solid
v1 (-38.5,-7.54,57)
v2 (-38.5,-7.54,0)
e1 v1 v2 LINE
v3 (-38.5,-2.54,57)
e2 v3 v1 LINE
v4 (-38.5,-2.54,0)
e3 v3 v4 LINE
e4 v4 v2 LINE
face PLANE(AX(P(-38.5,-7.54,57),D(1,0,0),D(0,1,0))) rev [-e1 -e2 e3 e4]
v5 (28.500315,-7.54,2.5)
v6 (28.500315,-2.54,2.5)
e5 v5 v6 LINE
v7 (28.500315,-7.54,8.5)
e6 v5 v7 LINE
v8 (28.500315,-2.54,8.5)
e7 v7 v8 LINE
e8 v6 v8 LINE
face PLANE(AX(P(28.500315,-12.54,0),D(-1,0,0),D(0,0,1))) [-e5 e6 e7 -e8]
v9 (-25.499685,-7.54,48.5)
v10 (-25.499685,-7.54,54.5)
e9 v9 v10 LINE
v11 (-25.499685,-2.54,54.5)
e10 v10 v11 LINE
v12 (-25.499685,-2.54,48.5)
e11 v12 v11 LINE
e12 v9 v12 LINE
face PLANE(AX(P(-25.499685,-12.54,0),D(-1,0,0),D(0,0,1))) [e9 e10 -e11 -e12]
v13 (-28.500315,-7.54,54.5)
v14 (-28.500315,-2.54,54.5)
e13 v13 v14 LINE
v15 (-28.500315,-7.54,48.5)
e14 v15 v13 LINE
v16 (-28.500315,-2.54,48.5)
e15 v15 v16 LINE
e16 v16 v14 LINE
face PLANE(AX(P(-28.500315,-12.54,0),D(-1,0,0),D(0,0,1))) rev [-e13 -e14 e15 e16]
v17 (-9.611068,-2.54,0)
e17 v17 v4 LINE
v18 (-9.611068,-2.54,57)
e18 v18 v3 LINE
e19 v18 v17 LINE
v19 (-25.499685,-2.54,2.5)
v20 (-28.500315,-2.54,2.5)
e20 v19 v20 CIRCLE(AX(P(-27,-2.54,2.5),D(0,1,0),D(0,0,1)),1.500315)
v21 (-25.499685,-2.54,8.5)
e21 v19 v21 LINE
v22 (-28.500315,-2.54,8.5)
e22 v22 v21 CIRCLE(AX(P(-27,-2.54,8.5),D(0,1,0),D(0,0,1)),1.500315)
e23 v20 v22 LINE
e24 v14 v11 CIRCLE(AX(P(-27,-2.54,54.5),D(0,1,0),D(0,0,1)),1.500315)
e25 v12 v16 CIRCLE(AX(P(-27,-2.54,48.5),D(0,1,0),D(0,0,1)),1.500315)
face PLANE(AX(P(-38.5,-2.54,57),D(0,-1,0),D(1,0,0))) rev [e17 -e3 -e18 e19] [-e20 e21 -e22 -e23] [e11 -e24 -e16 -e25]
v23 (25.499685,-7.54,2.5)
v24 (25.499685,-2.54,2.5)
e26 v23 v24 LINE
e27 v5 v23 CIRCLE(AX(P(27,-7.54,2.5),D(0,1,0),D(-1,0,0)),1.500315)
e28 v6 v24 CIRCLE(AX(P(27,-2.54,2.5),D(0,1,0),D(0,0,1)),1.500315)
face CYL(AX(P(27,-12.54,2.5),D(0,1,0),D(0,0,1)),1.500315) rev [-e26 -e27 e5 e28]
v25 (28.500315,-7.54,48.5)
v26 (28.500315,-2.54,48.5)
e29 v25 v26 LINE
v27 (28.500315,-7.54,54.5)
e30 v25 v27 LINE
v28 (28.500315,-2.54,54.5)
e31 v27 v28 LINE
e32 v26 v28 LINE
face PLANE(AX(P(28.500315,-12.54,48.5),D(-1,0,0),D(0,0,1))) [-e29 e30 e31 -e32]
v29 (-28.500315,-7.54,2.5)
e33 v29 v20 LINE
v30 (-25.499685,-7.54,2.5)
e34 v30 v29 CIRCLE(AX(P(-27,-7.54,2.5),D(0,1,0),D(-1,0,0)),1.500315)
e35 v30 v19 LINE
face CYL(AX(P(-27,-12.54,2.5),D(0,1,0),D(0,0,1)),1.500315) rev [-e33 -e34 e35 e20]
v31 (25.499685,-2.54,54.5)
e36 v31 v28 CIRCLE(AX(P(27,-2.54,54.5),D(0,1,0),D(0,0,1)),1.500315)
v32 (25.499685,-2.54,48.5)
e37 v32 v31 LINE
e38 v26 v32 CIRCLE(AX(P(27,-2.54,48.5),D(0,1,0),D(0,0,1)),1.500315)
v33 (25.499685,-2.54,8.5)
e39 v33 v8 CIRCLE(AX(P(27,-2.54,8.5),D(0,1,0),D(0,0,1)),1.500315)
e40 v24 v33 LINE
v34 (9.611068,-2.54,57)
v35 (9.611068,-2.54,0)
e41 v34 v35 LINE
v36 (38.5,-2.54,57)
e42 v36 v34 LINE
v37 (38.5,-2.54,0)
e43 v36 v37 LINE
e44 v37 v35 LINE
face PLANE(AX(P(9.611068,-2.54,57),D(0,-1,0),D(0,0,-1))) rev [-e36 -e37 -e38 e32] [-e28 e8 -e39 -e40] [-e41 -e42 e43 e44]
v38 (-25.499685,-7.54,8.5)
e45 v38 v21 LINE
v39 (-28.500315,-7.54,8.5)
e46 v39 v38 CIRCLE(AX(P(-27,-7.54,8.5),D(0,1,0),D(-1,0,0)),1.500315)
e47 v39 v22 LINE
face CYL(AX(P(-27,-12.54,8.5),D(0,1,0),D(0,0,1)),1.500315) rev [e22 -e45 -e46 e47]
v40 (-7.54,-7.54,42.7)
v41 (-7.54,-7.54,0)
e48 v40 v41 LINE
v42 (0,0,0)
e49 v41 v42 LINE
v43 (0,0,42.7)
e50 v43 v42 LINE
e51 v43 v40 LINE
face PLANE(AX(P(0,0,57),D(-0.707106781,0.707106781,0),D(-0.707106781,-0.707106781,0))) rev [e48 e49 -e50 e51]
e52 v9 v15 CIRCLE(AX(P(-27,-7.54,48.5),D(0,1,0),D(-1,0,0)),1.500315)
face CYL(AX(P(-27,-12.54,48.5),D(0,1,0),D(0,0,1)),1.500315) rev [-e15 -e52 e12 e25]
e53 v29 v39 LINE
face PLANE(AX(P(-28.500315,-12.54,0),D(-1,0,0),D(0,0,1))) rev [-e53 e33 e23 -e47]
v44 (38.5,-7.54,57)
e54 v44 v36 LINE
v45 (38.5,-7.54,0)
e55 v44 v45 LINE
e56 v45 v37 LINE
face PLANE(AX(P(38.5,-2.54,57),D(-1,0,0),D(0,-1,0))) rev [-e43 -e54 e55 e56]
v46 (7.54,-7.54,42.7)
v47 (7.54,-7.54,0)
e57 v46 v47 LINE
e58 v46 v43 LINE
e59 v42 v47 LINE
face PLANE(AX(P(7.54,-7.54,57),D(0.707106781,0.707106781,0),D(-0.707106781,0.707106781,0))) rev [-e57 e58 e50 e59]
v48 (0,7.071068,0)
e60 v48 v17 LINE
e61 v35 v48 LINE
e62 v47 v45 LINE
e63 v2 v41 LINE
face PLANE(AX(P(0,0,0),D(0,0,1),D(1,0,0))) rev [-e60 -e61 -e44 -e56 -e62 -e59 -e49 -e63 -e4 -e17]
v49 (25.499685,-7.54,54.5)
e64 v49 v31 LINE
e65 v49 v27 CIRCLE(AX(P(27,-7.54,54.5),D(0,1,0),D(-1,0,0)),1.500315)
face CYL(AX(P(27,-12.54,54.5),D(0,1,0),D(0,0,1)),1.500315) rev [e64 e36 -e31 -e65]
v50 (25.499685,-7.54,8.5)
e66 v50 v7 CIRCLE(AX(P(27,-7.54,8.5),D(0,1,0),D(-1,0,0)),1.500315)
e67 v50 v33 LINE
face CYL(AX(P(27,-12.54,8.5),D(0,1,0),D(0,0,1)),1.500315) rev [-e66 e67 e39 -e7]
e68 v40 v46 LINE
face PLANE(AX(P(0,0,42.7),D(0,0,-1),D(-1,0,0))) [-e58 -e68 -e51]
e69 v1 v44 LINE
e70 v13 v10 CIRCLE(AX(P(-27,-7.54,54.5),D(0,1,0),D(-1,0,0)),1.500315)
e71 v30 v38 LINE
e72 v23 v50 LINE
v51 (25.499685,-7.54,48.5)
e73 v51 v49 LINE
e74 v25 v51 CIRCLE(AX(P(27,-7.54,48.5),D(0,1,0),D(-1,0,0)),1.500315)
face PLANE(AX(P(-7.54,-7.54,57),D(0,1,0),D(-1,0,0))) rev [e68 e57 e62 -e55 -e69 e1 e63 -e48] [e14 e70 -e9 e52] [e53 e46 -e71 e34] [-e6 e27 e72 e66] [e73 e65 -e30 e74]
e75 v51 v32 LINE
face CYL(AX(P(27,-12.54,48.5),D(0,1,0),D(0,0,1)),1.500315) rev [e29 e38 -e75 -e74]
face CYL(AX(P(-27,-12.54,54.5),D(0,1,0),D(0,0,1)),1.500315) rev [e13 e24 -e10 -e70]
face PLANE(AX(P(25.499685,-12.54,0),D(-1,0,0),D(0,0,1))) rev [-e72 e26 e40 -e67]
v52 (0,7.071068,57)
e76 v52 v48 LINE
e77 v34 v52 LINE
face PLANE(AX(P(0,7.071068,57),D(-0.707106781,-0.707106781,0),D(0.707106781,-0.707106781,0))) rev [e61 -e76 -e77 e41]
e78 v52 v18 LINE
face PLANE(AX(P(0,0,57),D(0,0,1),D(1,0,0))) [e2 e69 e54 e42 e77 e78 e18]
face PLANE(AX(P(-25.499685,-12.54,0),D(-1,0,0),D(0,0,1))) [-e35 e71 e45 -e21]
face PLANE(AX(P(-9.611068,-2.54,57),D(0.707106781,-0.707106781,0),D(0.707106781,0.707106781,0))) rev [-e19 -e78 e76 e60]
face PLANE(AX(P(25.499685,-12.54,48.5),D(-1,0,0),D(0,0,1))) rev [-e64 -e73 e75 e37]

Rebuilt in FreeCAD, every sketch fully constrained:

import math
import FreeCAD as App
import Part
import Sketcher

V = App.Vector

doc = App.newDocument("Part")
params = doc.addObject("Spreadsheet::Sheet", "Params")
for row, (alias, value) in enumerate([
    ("sketch1_height", "5 mm"),
    ("sketch1_width", "30.96 mm"),
    ("pad1_length", "57 mm"),
    ("sketch2_width", "15.08 mm"),
    ("pad2_length", "14.3 mm"),
    ("sketch3_height", "6 mm"),
    ("pocket1_length", "10 mm"),
], start=1):
    params.set(f"A{row}", alias)
    params.set(f"B{row}", "=" + value)
    params.setAlias(f"B{row}", alias)

body = doc.addObject("PartDesign::Body", "Body")

sketch1 = doc.addObject("Sketcher::SketchObject", "Sketch")
body.addObject(sketch1)
sketch1.AttachmentSupport = (doc.XY_Plane, [""])
sketch1.MapMode = "FlatFace"
sketch1.addGeometry([
    Part.LineSegment(V(-7.54, -7.54, 0), V(0, 0, 0)),
    Part.LineSegment(V(0, 0, 0), V(7.54, -7.54, 0)),
    Part.LineSegment(V(7.54, -7.54, 0), V(38.5, -7.54, 0)),
    Part.LineSegment(V(38.5, -7.54, 0), V(38.5, -2.54, 0)),
    Part.LineSegment(V(38.5, -2.54, 0), V(9.611068, -2.54, 0)),
    Part.LineSegment(V(9.611068, -2.54, 0), V(0, 7.071068, 0)),
    Part.LineSegment(V(0, 7.071068, 0), V(-9.611068, -2.54, 0)),
    Part.LineSegment(V(-9.611068, -2.54, 0), V(-38.5, -2.54, 0)),
    Part.LineSegment(V(-38.5, -2.54, 0), V(-38.5, -7.54, 0)),
    Part.LineSegment(V(-38.5, -7.54, 0), V(-7.54, -7.54, 0)),
], False)
sketch1.addConstraint([
    Sketcher.Constraint("Coincident", 0, 2, 1, 1),
    Sketcher.Constraint("Coincident", 1, 2, 2, 1),
    Sketcher.Constraint("Coincident", 2, 2, 3, 1),
    Sketcher.Constraint("Coincident", 3, 2, 4, 1),
    Sketcher.Constraint("Coincident", 4, 2, 5, 1),
    Sketcher.Constraint("Coincident", 5, 2, 6, 1),
    Sketcher.Constraint("Coincident", 6, 2, 7, 1),
    Sketcher.Constraint("Coincident", 7, 2, 8, 1),
    Sketcher.Constraint("Coincident", 8, 2, 9, 1),
    Sketcher.Constraint("Coincident", 9, 2, 0, 1),
    Sketcher.Constraint("Horizontal", 2),
    Sketcher.Constraint("Vertical", 3),
    Sketcher.Constraint("Horizontal", 4),
    Sketcher.Constraint("Horizontal", 7),
    Sketcher.Constraint("Vertical", 8),
    Sketcher.Constraint("Horizontal", 9),
    Sketcher.Constraint("Coincident", 0, 2, -1, 1),
    Sketcher.Constraint("Symmetric", 4, 2, 6, 2, -2),
    Sketcher.Constraint("Symmetric", 2, 2, 8, 2, -2),
    Sketcher.Constraint("PointOnObject", 5, 2, -2),
    Sketcher.Constraint("Perpendicular", 0, 1),
    Sketcher.Constraint("Parallel", 1, 5),
    Sketcher.Constraint("Perpendicular", 5, 6),
    Sketcher.Constraint("DistanceY", 3, 1, 3, 2, 5.0),
    Sketcher.Constraint("DistanceX", 2, 1, 2, 2, 30.96),
    Sketcher.Constraint("DistanceX", -1, 1, 2, 2, 38.5),
    Sketcher.Constraint("DistanceX", 4, 2, 4, 1, 28.888932),
])
sketch1.setExpression("Constraints[23]", "Params.sketch1_height")
sketch1.setExpression("Constraints[24]", "Params.sketch1_width")
pad1 = doc.addObject("PartDesign::Pad", "Pad")
body.addObject(pad1)
pad1.Profile = sketch1
pad1.setExpression("Length", "Params.pad1_length")

sketch2 = doc.addObject("Sketcher::SketchObject", "Sketch001")
body.addObject(sketch2)
sketch2.AttachmentSupport = (doc.XY_Plane, [""])
sketch2.MapMode = "FlatFace"
sketch2.AttachmentOffset = App.Placement(V(0, 0, 57), App.Rotation())
sketch2.addGeometry([
    Part.LineSegment(V(0, 0, 0), V(-7.54, -7.54, 0)),
    Part.LineSegment(V(-7.54, -7.54, 0), V(7.54, -7.54, 0)),
    Part.LineSegment(V(7.54, -7.54, 0), V(0, 0, 0)),
], False)
sketch2.addConstraint([
    Sketcher.Constraint("Coincident", 0, 2, 1, 1),
    Sketcher.Constraint("Coincident", 1, 2, 2, 1),
    Sketcher.Constraint("Coincident", 2, 2, 0, 1),
    Sketcher.Constraint("Horizontal", 1),
    Sketcher.Constraint("Coincident", 2, 2, -1, 1),
    Sketcher.Constraint("Perpendicular", 0, 2),
    Sketcher.Constraint("Equal", 0, 2),
    Sketcher.Constraint("DistanceX", 1, 1, 1, 2, 15.08),
])
sketch2.setExpression("Constraints[7]", "Params.sketch2_width")
pad2 = doc.addObject("PartDesign::Pad", "Pad001")
body.addObject(pad2)
pad2.Profile = sketch2
pad2.setExpression("Length", "Params.pad2_length")
pad2.Reversed = True

sketch3 = doc.addObject("Sketcher::SketchObject", "Sketch002")
body.addObject(sketch3)
sketch3.AttachmentSupport = (doc.XZ_Plane, [""])
sketch3.MapMode = "FlatFace"
sketch3.AttachmentOffset = App.Placement(V(0, 0, 2.54), App.Rotation())
sketch3.addGeometry([
    Part.LineSegment(V(-28.500315, 48.5, 0), V(-28.500315, 54.5, 0)),
    Part.ArcOfCircle(Part.Circle(V(-27, 54.5, 0), V(0, 0, 1), 1.500315), math.radians(0), math.radians(180)),
    Part.LineSegment(V(-25.499685, 54.5, 0), V(-25.499685, 48.5, 0)),
    Part.ArcOfCircle(Part.Circle(V(-27, 48.5, 0), V(0, 0, 1), 1.500315), math.radians(180), math.radians(360)),
    Part.LineSegment(V(25.499685, 2.5, 0), V(25.499685, 8.5, 0)),
    Part.ArcOfCircle(Part.Circle(V(27, 8.5, 0), V(0, 0, 1), 1.500315), math.radians(0), math.radians(180)),
    Part.LineSegment(V(28.500315, 8.5, 0), V(28.500315, 2.5, 0)),
    Part.ArcOfCircle(Part.Circle(V(27, 2.5, 0), V(0, 0, 1), 1.500315), math.radians(180), math.radians(360)),
    Part.LineSegment(V(-28.500315, 2.5, 0), V(-28.500315, 8.5, 0)),
    Part.ArcOfCircle(Part.Circle(V(-27, 8.5, 0), V(0, 0, 1), 1.500315), math.radians(0), math.radians(180)),
    Part.LineSegment(V(-25.499685, 8.5, 0), V(-25.499685, 2.5, 0)),
    Part.ArcOfCircle(Part.Circle(V(-27, 2.5, 0), V(0, 0, 1), 1.500315), math.radians(180), math.radians(360)),
    Part.LineSegment(V(25.499685, 48.5, 0), V(25.499685, 54.5, 0)),
    Part.ArcOfCircle(Part.Circle(V(27, 54.5, 0), V(0, 0, 1), 1.500315), math.radians(0), math.radians(180)),
    Part.LineSegment(V(28.500315, 54.5, 0), V(28.500315, 48.5, 0)),
    Part.ArcOfCircle(Part.Circle(V(27, 48.5, 0), V(0, 0, 1), 1.500315), math.radians(180), math.radians(360)),
], False)
sketch3.addConstraint([
    Sketcher.Constraint("Tangent", 0, 2, 1, 2),
    Sketcher.Constraint("Tangent", 1, 1, 2, 1),
    Sketcher.Constraint("Tangent", 2, 2, 3, 2),
    Sketcher.Constraint("Tangent", 3, 1, 0, 1),
    Sketcher.Constraint("Tangent", 4, 2, 5, 2),
    Sketcher.Constraint("Tangent", 5, 1, 6, 1),
    Sketcher.Constraint("Tangent", 6, 2, 7, 2),
    Sketcher.Constraint("Tangent", 7, 1, 4, 1),
    Sketcher.Constraint("Tangent", 8, 2, 9, 2),
    Sketcher.Constraint("Tangent", 9, 1, 10, 1),
    Sketcher.Constraint("Tangent", 10, 2, 11, 2),
    Sketcher.Constraint("Tangent", 11, 1, 8, 1),
    Sketcher.Constraint("Tangent", 12, 2, 13, 2),
    Sketcher.Constraint("Tangent", 13, 1, 14, 1),
    Sketcher.Constraint("Tangent", 14, 2, 15, 2),
    Sketcher.Constraint("Tangent", 15, 1, 12, 1),
    Sketcher.Constraint("Vertical", 0),
    Sketcher.Constraint("Vertical", 2),
    Sketcher.Constraint("Vertical", 4),
    Sketcher.Constraint("Vertical", 6),
    Sketcher.Constraint("Vertical", 8),
    Sketcher.Constraint("Vertical", 10),
    Sketcher.Constraint("Vertical", 12),
    Sketcher.Constraint("Vertical", 14),
    Sketcher.Constraint("Equal", 3, 5),
    Sketcher.Constraint("Equal", 7, 9),
    Sketcher.Constraint("Equal", 11, 13),
    Sketcher.Constraint("Symmetric", 5, 3, 9, 3, -2),
    Sketcher.Constraint("Symmetric", 1, 3, 13, 3, -2),
    Sketcher.Constraint("Horizontal", 7, 3, 11, 3),
    Sketcher.Constraint("Horizontal", 3, 3, 15, 3),
    Sketcher.Constraint("Vertical", 3, 3, 9, 3),
    Sketcher.Constraint("Equal", 2, 4),
    Sketcher.Constraint("DistanceY", 0, 1, 0, 2, 6.0),
    Sketcher.Constraint("DistanceX", 1, 3, -1, 1, 27.0),
    Sketcher.Constraint("DistanceY", 5, 3, 3, 3, 40.0),
    Sketcher.Constraint("DistanceY", -1, 1, 1, 3, 54.5),
    Sketcher.Constraint("Radius", 1, 1.500315),
])
sketch3.setExpression("Constraints[33]", "Params.sketch3_height")
pocket1 = doc.addObject("PartDesign::Pocket", "Pocket")
body.addObject(pocket1)
pocket1.Profile = sketch3
pocket1.setExpression("Length", "Params.pocket1_length")
pocket1.Reversed = True

doc.recompute()
